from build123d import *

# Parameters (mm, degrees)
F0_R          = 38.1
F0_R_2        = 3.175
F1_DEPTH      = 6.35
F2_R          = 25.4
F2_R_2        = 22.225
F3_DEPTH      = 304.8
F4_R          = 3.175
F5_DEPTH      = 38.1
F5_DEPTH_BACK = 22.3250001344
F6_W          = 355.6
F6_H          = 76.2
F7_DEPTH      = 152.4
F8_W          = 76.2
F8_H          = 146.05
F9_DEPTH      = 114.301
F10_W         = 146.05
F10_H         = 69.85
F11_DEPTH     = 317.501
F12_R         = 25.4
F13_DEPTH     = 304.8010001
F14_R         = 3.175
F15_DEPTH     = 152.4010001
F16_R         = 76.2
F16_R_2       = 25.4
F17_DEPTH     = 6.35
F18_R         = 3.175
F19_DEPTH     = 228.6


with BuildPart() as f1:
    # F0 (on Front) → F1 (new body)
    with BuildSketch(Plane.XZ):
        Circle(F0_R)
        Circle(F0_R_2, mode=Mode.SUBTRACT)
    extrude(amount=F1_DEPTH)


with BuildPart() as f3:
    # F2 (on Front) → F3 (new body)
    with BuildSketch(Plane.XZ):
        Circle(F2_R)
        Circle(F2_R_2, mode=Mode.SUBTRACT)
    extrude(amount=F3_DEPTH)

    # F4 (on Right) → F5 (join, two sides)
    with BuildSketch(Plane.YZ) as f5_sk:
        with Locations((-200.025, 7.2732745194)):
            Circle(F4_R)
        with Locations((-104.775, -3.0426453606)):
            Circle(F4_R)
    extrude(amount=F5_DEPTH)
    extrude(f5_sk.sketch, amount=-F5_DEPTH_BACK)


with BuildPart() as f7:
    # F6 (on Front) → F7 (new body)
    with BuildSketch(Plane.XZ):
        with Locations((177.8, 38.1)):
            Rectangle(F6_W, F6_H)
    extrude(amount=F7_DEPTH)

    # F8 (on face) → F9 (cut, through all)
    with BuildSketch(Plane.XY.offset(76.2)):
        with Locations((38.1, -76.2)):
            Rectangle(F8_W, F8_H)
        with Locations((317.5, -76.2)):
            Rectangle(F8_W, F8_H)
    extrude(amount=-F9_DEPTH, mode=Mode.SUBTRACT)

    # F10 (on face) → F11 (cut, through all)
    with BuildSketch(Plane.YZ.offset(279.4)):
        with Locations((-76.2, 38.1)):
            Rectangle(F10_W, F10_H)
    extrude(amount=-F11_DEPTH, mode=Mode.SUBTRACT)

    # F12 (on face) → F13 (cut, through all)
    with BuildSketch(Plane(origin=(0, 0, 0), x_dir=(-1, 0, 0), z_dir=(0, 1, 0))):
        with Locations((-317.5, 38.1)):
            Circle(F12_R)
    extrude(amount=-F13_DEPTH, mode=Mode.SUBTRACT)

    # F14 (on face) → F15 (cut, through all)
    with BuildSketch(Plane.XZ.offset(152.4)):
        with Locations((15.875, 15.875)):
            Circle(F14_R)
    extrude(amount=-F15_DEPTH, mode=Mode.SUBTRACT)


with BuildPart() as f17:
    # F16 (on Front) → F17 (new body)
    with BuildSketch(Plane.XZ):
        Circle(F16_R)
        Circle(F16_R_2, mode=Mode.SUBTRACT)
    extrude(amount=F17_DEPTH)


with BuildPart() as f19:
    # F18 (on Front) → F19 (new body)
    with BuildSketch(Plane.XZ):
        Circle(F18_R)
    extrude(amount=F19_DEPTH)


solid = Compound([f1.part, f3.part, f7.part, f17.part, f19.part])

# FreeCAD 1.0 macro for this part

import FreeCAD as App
import Part
import Sketcher

V = App.Vector
Q = App.Units.Quantity


def add_polygon(sketch, points):
    """Adds a closed chain of lines whose ends are joined by coincident constraints."""
    first, n = sketch.GeometryCount, len(points)
    for a, b in zip(points, points[1:] + points[:1]):
        sketch.addGeometry(Part.LineSegment(App.Vector(*a, 0), App.Vector(*b, 0)), False)
    for i in range(n):
        sketch.addConstraint(Sketcher.Constraint("Coincident", first + i, 2, first + (i + 1) % n, 1))

doc = App.newDocument("Part")
body = doc.addObject("PartDesign::Body", "Body")

sketch1 = doc.addObject("Sketcher::SketchObject", "Sketch")
body.addObject(sketch1)
sketch1.AttachmentSupport = (doc.XZ_Plane, [""])
sketch1.MapMode = "FlatFace"
sketch1.addGeometry(Part.Circle(V(0, 0, 0), V(0, 0, 1), 38.1), False)
sketch1.addGeometry(Part.Circle(V(0, 0, 0), V(0, 0, 1), 3.2), False)
sketch1.addConstraint(Sketcher.Constraint("Coincident", 0, 3, -1, 1))
sketch1.addConstraint(Sketcher.Constraint("Coincident", 1, 3, -1, 1))
sketch1.addConstraint(Sketcher.Constraint("Diameter", 0, Q("3 in")))
sketch1.addConstraint(Sketcher.Constraint("Diameter", 1, Q("0.25 in")))
pad1 = doc.addObject("PartDesign::Pad", "Pad")
body.addObject(pad1)
pad1.Profile = sketch1
pad1.Length = Q("0.25 in")
body2 = doc.addObject("PartDesign::Body", "Body001")

sketch2 = doc.addObject("Sketcher::SketchObject", "Sketch001")
body2.addObject(sketch2)
sketch2.AttachmentSupport = (doc.getObject("XZ_Plane001"), [""])
sketch2.MapMode = "FlatFace"
sketch2.addGeometry(Part.Circle(V(0, 0, 0), V(0, 0, 1), 25), False)
sketch2.addGeometry(Part.Circle(V(0, 0, 0), V(0, 0, 1), 22), False)
sketch2.addConstraint(Sketcher.Constraint("Coincident", 0, 3, -1, 1))
sketch2.addConstraint(Sketcher.Constraint("Coincident", 1, 3, -1, 1))
sketch2.addConstraint(Sketcher.Constraint("Diameter", 0, Q("2 in")))
sketch2.addConstraint(Sketcher.Constraint("Diameter", 1, Q("1.75 in")))
pad2 = doc.addObject("PartDesign::Pad", "Pad001")
body2.addObject(pad2)
pad2.Profile = sketch2
pad2.Length = Q("12 in")

sketch3 = doc.addObject("Sketcher::SketchObject", "Sketch002")
body2.addObject(sketch3)
sketch3.AttachmentSupport = (doc.getObject("YZ_Plane001"), [""])
sketch3.MapMode = "FlatFace"
sketch3.addGeometry(Part.Circle(V(-200, 7.3, 0), V(0, 0, 1), 3.2), False)
sketch3.addGeometry(Part.Circle(V(-104.8, -3, 0), V(0, 0, 1), 3.2), False)
sketch3.addConstraint(Sketcher.Constraint("Equal", 0, 1))
sketch3.addConstraint(Sketcher.Constraint("Diameter", 0, Q("0.25 in")))
sketch3.addConstraint(Sketcher.Constraint("DistanceX", 0, 3, 1, 3, Q("3.75 in")))
sketch3.addConstraint(Sketcher.Constraint("DistanceX", 0, 3, -1, 1, Q("7.875 in")))
sketch3.addConstraint(Sketcher.Constraint("DistanceY", 1, 3, 0, 3, Q("10.31592 mm")))
sketch3.addConstraint(Sketcher.Constraint("DistanceY", -1, 1, 0, 3, Q("7.273275 mm")))
pad3 = doc.addObject("PartDesign::Pad", "Pad002")
body2.addObject(pad3)
pad3.Profile = sketch3
pad3.Type = "TwoLengths"
pad3.Length = Q("1.5 in")
pad3.Length2 = 22.325
body3 = doc.addObject("PartDesign::Body", "Body002")

sketch4 = doc.addObject("Sketcher::SketchObject", "Sketch003")
body3.addObject(sketch4)
sketch4.AttachmentSupport = (doc.getObject("XZ_Plane002"), [""])
sketch4.MapMode = "FlatFace"
add_polygon(sketch4, [(0, 76), (0, 0), (356, 0), (356, 76)])
sketch4.addConstraint(Sketcher.Constraint("Vertical", 0))
sketch4.addConstraint(Sketcher.Constraint("Horizontal", 1))
sketch4.addConstraint(Sketcher.Constraint("Vertical", 2))
sketch4.addConstraint(Sketcher.Constraint("Horizontal", 3))
sketch4.addConstraint(Sketcher.Constraint("Coincident", 0, 2, -1, 1))
sketch4.addConstraint(Sketcher.Constraint("DistanceX", 1, 1, 1, 2, Q("14 in")))
sketch4.addConstraint(Sketcher.Constraint("DistanceY", 0, 2, 0, 1, Q("3 in")))
pad4 = doc.addObject("PartDesign::Pad", "Pad003")
body3.addObject(pad4)
pad4.Profile = sketch4
pad4.Length = Q("6 in")

sketch5 = doc.addObject("Sketcher::SketchObject", "Sketch004")
body3.addObject(sketch5)
sketch5.AttachmentSupport = (doc.getObject("XY_Plane002"), [""])
sketch5.MapMode = "FlatFace"
sketch5.AttachmentOffset = App.Placement(V(0, 0, 3 * 25.4), App.Rotation())
add_polygon(sketch5, [(0, -3), (0, -149), (76, -149), (76, -3)])
add_polygon(sketch5, [(279, -3), (279, -149), (356, -149), (356, -3)])
sketch5.addConstraint(Sketcher.Constraint("Vertical", 0))
sketch5.addConstraint(Sketcher.Constraint("Horizontal", 1))
sketch5.addConstraint(Sketcher.Constraint("Vertical", 2))
sketch5.addConstraint(Sketcher.Constraint("Horizontal", 3))
sketch5.addConstraint(Sketcher.Constraint("Vertical", 4))
sketch5.addConstraint(Sketcher.Constraint("Horizontal", 5))
sketch5.addConstraint(Sketcher.Constraint("Vertical", 6))
sketch5.addConstraint(Sketcher.Constraint("Horizontal", 7))
sketch5.addConstraint(Sketcher.Constraint("PointOnObject", 0, 2, -2))
sketch5.addConstraint(Sketcher.Constraint("Horizontal", 1, 2, 4, 2))
sketch5.addConstraint(Sketcher.Constraint("Horizontal", 3, 2, 6, 2))
sketch5.addConstraint(Sketcher.Constraint("Equal", 3, 5))
sketch5.addConstraint(Sketcher.Constraint("DistanceX", 1, 1, 1, 2, Q("3 in")))
sketch5.addConstraint(Sketcher.Constraint("DistanceX", -1, 1, 4, 2, Q("11 in")))
sketch5.addConstraint(Sketcher.Constraint("DistanceY", 0, 2, 0, 1, Q("5.75 in")))
sketch5.addConstraint(Sketcher.Constraint("DistanceY", 0, 2, -1, 1, Q("5.875 in")))
pocket1 = doc.addObject("PartDesign::Pocket", "Pocket")
body3.addObject(pocket1)
pocket1.Profile = sketch5
pocket1.Type = "ThroughAll"

sketch6 = doc.addObject("Sketcher::SketchObject", "Sketch005")
body3.addObject(sketch6)
sketch6.AttachmentSupport = (doc.getObject("YZ_Plane002"), [""])
sketch6.MapMode = "FlatFace"
sketch6.AttachmentOffset = App.Placement(V(0, 0, 11 * 25.4), App.Rotation())
add_polygon(sketch6, [(-149, 73), (-149, 3), (-3, 3), (-3, 73)])
sketch6.addConstraint(Sketcher.Constraint("Vertical", 0))
sketch6.addConstraint(Sketcher.Constraint("Horizontal", 1))
sketch6.addConstraint(Sketcher.Constraint("Vertical", 2))
sketch6.addConstraint(Sketcher.Constraint("Horizontal", 3))
sketch6.addConstraint(Sketcher.Constraint("DistanceX", 1, 1, 1, 2, Q("5.75 in")))
sketch6.addConstraint(Sketcher.Constraint("DistanceY", 0, 2, 0, 1, Q("2.75 in")))
sketch6.addConstraint(Sketcher.Constraint("DistanceX", 0, 2, -1, 1, Q("5.875 in")))
sketch6.addConstraint(Sketcher.Constraint("DistanceY", -1, 1, 0, 2, Q("0.125 in")))
pocket2 = doc.addObject("PartDesign::Pocket", "Pocket001")
body3.addObject(pocket2)
pocket2.Profile = sketch6
pocket2.Type = "ThroughAll"

sketch7 = doc.addObject("Sketcher::SketchObject", "Sketch006")
body3.addObject(sketch7)
sketch7.AttachmentSupport = (doc.getObject("XZ_Plane002"), [""])
sketch7.MapMode = "FlatFace"
sketch7.addGeometry(Part.Circle(V(318, 38, 0), V(0, 0, 1), 25), False)
sketch7.addConstraint(Sketcher.Constraint("Diameter", 0, Q("2 in")))
sketch7.addConstraint(Sketcher.Constraint("DistanceX", -1, 1, 0, 3, Q("12.5 in")))
sketch7.addConstraint(Sketcher.Constraint("DistanceY", -1, 1, 0, 3, Q("1.5 in")))
pocket3 = doc.addObject("PartDesign::Pocket", "Pocket002")
body3.addObject(pocket3)
pocket3.Profile = sketch7
pocket3.Type = "ThroughAll"
pocket3.Reversed = True

sketch8 = doc.addObject("Sketcher::SketchObject", "Sketch007")
body3.addObject(sketch8)
sketch8.AttachmentSupport = (doc.getObject("XZ_Plane002"), [""])
sketch8.MapMode = "FlatFace"
sketch8.AttachmentOffset = App.Placement(V(0, 0, 6 * 25.4), App.Rotation())
sketch8.addGeometry(Part.Circle(V(15.9, 15.9, 0), V(0, 0, 1), 3.2), False)
sketch8.addConstraint(Sketcher.Constraint("Diameter", 0, Q("0.25 in")))
sketch8.addConstraint(Sketcher.Constraint("DistanceX", -1, 1, 0, 3, Q("0.625 in")))
sketch8.addConstraint(Sketcher.Constraint("DistanceY", -1, 1, 0, 3, Q("0.625 in")))
pocket4 = doc.addObject("PartDesign::Pocket", "Pocket003")
body3.addObject(pocket4)
pocket4.Profile = sketch8
pocket4.Type = "ThroughAll"
body4 = doc.addObject("PartDesign::Body", "Body003")

sketch9 = doc.addObject("Sketcher::SketchObject", "Sketch008")
body4.addObject(sketch9)
sketch9.AttachmentSupport = (doc.getObject("XZ_Plane003"), [""])
sketch9.MapMode = "FlatFace"
sketch9.addGeometry(Part.Circle(V(0, 0, 0), V(0, 0, 1), 76), False)
sketch9.addGeometry(Part.Circle(V(0, 0, 0), V(0, 0, 1), 25), False)
sketch9.addConstraint(Sketcher.Constraint("Coincident", 0, 3, -1, 1))
sketch9.addConstraint(Sketcher.Constraint("Coincident", 1, 3, -1, 1))
sketch9.addConstraint(Sketcher.Constraint("Diameter", 0, Q("6 in")))
sketch9.addConstraint(Sketcher.Constraint("Diameter", 1, Q("2 in")))
pad5 = doc.addObject("PartDesign::Pad", "Pad004")
body4.addObject(pad5)
pad5.Profile = sketch9
pad5.Length = Q("0.25 in")
body5 = doc.addObject("PartDesign::Body", "Body004")

sketch10 = doc.addObject("Sketcher::SketchObject", "Sketch009")
body5.addObject(sketch10)
sketch10.AttachmentSupport = (doc.getObject("XZ_Plane004"), [""])
sketch10.MapMode = "FlatFace"
sketch10.addGeometry(Part.Circle(V(0, 0, 0), V(0, 0, 1), 3.2), False)
sketch10.addConstraint(Sketcher.Constraint("Coincident", 0, 3, -1, 1))
sketch10.addConstraint(Sketcher.Constraint("Diameter", 0, Q("0.25 in")))
pad6 = doc.addObject("PartDesign::Pad", "Pad005")
body5.addObject(pad6)
pad6.Profile = sketch10
pad6.Length = Q("9 in")

doc.recompute()
